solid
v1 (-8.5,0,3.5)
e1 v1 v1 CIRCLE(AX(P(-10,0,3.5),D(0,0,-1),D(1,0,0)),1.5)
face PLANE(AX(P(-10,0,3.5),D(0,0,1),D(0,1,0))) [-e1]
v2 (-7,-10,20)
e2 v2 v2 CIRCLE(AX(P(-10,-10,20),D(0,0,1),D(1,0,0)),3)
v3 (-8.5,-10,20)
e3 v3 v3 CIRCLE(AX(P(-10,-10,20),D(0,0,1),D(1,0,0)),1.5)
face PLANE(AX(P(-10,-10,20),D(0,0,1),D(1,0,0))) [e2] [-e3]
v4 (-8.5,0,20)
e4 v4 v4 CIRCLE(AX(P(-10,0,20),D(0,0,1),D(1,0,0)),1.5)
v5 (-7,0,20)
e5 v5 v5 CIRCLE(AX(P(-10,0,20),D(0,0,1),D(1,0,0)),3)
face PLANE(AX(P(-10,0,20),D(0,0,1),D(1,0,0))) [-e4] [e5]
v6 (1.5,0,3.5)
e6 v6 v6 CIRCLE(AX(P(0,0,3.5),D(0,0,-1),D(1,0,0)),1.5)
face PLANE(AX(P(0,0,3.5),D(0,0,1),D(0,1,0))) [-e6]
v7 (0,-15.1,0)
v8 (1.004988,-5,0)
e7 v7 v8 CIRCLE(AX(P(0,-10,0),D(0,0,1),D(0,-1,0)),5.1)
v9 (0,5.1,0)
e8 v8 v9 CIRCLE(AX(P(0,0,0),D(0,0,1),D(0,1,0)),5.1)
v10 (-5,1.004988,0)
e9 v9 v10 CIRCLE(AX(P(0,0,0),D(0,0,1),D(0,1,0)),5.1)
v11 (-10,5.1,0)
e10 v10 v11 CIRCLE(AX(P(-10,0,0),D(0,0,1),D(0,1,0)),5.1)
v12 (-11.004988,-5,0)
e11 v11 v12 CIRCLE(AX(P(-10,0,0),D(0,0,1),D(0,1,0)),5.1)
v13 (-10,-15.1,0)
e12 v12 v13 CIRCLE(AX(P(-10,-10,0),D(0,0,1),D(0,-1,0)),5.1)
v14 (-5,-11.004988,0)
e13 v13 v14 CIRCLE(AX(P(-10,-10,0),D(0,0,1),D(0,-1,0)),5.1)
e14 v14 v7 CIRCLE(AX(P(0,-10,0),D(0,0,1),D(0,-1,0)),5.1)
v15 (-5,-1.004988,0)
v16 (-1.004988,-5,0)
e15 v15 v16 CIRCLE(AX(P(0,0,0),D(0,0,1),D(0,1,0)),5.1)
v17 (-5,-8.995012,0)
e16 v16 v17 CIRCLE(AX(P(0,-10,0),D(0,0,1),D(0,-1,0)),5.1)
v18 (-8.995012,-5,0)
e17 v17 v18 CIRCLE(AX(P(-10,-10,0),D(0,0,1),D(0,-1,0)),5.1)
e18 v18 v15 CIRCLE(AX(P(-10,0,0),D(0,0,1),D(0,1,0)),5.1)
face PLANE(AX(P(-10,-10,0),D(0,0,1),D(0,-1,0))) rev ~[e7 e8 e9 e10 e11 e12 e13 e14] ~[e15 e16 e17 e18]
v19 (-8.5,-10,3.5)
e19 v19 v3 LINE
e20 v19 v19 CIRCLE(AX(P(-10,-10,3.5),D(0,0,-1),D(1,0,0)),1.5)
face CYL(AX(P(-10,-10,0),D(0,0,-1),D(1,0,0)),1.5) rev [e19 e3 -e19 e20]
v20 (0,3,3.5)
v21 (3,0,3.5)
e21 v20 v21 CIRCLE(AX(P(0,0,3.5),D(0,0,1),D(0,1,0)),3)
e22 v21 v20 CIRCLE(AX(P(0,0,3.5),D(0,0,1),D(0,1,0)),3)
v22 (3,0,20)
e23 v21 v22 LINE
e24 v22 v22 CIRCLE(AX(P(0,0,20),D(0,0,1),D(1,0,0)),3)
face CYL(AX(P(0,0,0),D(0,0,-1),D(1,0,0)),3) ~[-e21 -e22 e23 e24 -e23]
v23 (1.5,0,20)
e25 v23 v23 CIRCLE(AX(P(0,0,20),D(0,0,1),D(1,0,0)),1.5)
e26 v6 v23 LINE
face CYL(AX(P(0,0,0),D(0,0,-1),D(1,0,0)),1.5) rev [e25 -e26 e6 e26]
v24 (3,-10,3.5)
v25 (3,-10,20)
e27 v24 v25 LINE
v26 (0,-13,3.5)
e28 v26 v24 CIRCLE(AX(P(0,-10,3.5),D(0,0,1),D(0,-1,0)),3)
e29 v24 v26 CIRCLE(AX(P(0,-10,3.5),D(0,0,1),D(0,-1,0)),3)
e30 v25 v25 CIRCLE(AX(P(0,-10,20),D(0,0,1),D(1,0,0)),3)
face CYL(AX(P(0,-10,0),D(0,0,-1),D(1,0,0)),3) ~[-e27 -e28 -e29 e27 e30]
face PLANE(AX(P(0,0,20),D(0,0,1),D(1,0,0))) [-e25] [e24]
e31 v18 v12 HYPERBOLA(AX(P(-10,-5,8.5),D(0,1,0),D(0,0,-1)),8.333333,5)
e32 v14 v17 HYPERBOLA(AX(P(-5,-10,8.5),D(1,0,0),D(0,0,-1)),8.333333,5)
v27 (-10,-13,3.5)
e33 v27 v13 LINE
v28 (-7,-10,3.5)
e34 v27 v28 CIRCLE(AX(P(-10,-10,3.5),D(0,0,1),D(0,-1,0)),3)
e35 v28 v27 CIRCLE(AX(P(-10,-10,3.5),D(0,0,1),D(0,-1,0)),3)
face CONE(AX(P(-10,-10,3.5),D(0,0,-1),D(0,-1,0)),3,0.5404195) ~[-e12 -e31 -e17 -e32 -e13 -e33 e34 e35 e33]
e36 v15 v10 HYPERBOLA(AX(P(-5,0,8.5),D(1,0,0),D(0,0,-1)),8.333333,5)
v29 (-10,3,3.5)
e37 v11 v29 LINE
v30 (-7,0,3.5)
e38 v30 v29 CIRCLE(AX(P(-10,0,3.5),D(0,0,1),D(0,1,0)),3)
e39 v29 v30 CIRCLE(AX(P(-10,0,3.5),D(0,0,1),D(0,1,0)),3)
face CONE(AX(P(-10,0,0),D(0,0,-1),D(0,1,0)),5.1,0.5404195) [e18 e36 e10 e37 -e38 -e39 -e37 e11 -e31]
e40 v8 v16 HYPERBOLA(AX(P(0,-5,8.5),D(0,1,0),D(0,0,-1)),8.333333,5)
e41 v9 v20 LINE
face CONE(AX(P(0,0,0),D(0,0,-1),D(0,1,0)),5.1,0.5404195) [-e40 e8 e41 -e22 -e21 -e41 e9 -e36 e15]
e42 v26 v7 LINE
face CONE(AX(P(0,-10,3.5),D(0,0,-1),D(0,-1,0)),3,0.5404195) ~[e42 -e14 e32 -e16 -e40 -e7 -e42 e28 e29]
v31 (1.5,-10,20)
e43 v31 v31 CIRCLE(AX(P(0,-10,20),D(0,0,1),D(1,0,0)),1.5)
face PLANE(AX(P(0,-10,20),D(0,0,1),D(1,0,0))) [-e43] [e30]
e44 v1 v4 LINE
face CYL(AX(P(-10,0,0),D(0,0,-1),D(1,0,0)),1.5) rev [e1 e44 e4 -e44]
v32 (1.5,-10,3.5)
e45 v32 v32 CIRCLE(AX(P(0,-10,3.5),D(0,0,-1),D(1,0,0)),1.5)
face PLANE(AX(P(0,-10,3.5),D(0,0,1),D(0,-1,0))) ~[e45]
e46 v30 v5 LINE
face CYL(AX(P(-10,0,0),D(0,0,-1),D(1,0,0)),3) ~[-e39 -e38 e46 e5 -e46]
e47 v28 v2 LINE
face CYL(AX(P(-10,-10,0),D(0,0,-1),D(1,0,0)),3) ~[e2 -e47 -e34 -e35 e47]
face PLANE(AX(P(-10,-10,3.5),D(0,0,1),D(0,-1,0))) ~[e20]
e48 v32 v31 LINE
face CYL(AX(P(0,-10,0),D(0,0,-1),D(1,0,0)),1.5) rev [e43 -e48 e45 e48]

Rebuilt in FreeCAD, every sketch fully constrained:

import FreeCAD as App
import Part
import Sketcher

V = App.Vector
Q = App.Units.Quantity


def add_polygon(sketch, points):
    """Adds a closed chain of lines whose ends are joined by coincident constraints."""
    first, n = sketch.GeometryCount, len(points)
    for a, b in zip(points, points[1:] + points[:1]):
        sketch.addGeometry(Part.LineSegment(App.Vector(*a, 0), App.Vector(*b, 0)), False)
    for i in range(n):
        sketch.addConstraint(Sketcher.Constraint("Coincident", first + i, 2, first + (i + 1) % n, 1))

doc = App.newDocument("Part")
params = doc.addObject("Spreadsheet::Sheet", "Params")
for row, (alias, value) in enumerate([
    ("sketch1_diameter", "6 mm"),
    ("sketch1_diameter2", "3 mm"),
    ("pad1_length", "20 mm"),
    ("sketch2_width", "3 mm"),
    ("sketch2_width2", "5.1 mm"),
    ("sketch2_height", "3.5 mm"),
    ("revolution_angle", "360 deg"),
    ("sketch3_width", "3 mm"),
    ("sketch3_width2", "5.1 mm"),
    ("sketch3_height", "3.5 mm"),
    ("revolution2_angle", "360 deg"),
    ("sketch4_width", "3 mm"),
    ("sketch4_width2", "5.1 mm"),
    ("sketch4_height", "3.5 mm"),
    ("revolution3_angle", "360 deg"),
    ("sketch5_width", "3 mm"),
    ("sketch5_width2", "5.1 mm"),
    ("sketch5_height", "3.5 mm"),
    ("revolution4_angle", "360 deg"),
], start=1):
    params.set(f"A{row}", alias)
    params.set(f"B{row}", "=" + value)
    params.setAlias(f"B{row}", alias)

body = doc.addObject("PartDesign::Body", "Body")
body.AllowCompound = True

sketch1 = body.newObject("Sketcher::SketchObject", "Sketch")
sketch1.AttachmentSupport = (doc.getObject("XY_Plane"), [""])
sketch1.MapMode = "FlatFace"
sketch1.addGeometry([
    Part.Circle(V(0, 0, 0), V(0, 0, 1), 3),
    Part.Circle(V(0, 0, 0), V(0, 0, 1), 1.5),
    Part.Circle(V(-10, 0, 0), V(0, 0, 1), 3),
    Part.Circle(V(-10, 0, 0), V(0, 0, 1), 1.5),
    Part.Circle(V(-10, -10, 0), V(0, 0, 1), 3),
    Part.Circle(V(-10, -10, 0), V(0, 0, 1), 1.5),
    Part.Circle(V(0, -10, 0), V(0, 0, 1), 3),
    Part.Circle(V(0, -10, 0), V(0, 0, 1), 1.5),
], False)
sketch1.addConstraint([
    Sketcher.Constraint("Coincident", 0, 3, -1, 1),
    Sketcher.Constraint("Coincident", 1, 3, -1, 1),
    Sketcher.Constraint("Coincident", 3, 3, 2, 3),
    Sketcher.Constraint("Coincident", 5, 3, 4, 3),
    Sketcher.Constraint("Coincident", 7, 3, 6, 3),
    Sketcher.Constraint("Equal", 0, 2),
    Sketcher.Constraint("Equal", 1, 3),
    Sketcher.Constraint("Equal", 2, 4),
    Sketcher.Constraint("Equal", 3, 5),
    Sketcher.Constraint("Equal", 4, 6),
    Sketcher.Constraint("Equal", 5, 7),
    Sketcher.Constraint("PointOnObject", 2, 3, -1),
    Sketcher.Constraint("PointOnObject", 6, 3, -2),
    Sketcher.Constraint("Horizontal", 5, 3, 6, 3),
    Sketcher.Constraint("Vertical", 3, 3, 4, 3),
    Sketcher.Constraint("Diameter", 0, Q("6 mm")),
    Sketcher.Constraint("Diameter", 1, Q("3 mm")),
    Sketcher.Constraint("DistanceX", 2, 3, -1, 1, Q("10 mm")),
    Sketcher.Constraint("DistanceY", 4, 3, -1, 1, Q("10 mm")),
])
sketch1.setExpression("Constraints[15]", "Params.sketch1_diameter")
sketch1.setExpression("Constraints[16]", "Params.sketch1_diameter2")
pad1 = body.newObject("PartDesign::Pad", "Pad")
pad1.Profile = sketch1
pad1.setExpression("Length", "Params.pad1_length")

sketch2 = body.newObject("Sketcher::SketchObject", "Sketch001")
sketch2.AttachmentSupport = (doc.getObject("YZ_Plane"), [""])
sketch2.MapMode = "FlatFace"
add_polygon(sketch2, [(0, 3.5), (0, 0), (5.1, 0), (3, 3.5)])
sketch2.addConstraint([
    Sketcher.Constraint("Vertical", 0),
    Sketcher.Constraint("Horizontal", 1),
    Sketcher.Constraint("Horizontal", 3),
    Sketcher.Constraint("Coincident", 0, 2, -1, 1),
    Sketcher.Constraint("DistanceX", 3, 2, 3, 1, Q("3 mm")),
    Sketcher.Constraint("DistanceX", 1, 1, 1, 2, Q("5.1 mm")),
    Sketcher.Constraint("DistanceY", 0, 2, 0, 1, Q("3.5 mm")),
])
sketch2.setExpression("Constraints[8]", "Params.sketch2_width")
sketch2.setExpression("Constraints[9]", "Params.sketch2_width2")
sketch2.setExpression("Constraints[10]", "Params.sketch2_height")
revolution = body.newObject("PartDesign::Revolution", "Revolution")
revolution.Profile = sketch2
revolution.ReferenceAxis = (sketch2, ["V_Axis"])
revolution.setExpression("Angle", "Params.revolution_angle")

sketch3 = body.newObject("Sketcher::SketchObject", "Sketch002")
sketch3.AttachmentSupport = (doc.getObject("YZ_Plane"), [""])
sketch3.MapMode = "FlatFace"
add_polygon(sketch3, [(-15.1, 0), (-10, 0), (-10, 3.5), (-13, 3.5)])
sketch3.addGeometry(Part.LineSegment(V(-10, 0, 0), V(-10, 3.5, 0)), True)
sketch3.addConstraint([
    Sketcher.Constraint("Horizontal", 0),
    Sketcher.Constraint("Vertical", 1),
    Sketcher.Constraint("Horizontal", 2),
    Sketcher.Constraint("Vertical", 4),
    Sketcher.Constraint("Coincident", 4, 1, 0, 2),
    Sketcher.Constraint("PointOnObject", 0, 2, -1),
    Sketcher.Constraint("Horizontal", 2, 2, 4, 2),
    Sketcher.Constraint("DistanceX", 2, 2, 2, 1, Q("3 mm")),
    Sketcher.Constraint("DistanceX", 0, 1, 0, 2, Q("5.1 mm")),
    Sketcher.Constraint("DistanceY", 1, 1, 1, 2, Q("3.5 mm")),
    Sketcher.Constraint("DistanceX", 0, 2, -1, 1, Q("10 mm")),
])
sketch3.setExpression("Constraints[11]", "Params.sketch3_width")
sketch3.setExpression("Constraints[12]", "Params.sketch3_width2")
sketch3.setExpression("Constraints[13]", "Params.sketch3_height")
revolution2 = body.newObject("PartDesign::Revolution", "Revolution001")
revolution2.Profile = sketch3
revolution2.ReferenceAxis = (sketch3, ["Axis0"])
revolution2.setExpression("Angle", "Params.revolution2_angle")

sketch4 = body.newObject("Sketcher::SketchObject", "Sketch003")
sketch4.AttachmentSupport = (doc.getObject("YZ_Plane"), [""])
sketch4.MapMode = "FlatFace"
sketch4.AttachmentOffset = App.Placement(V(0, 0, -10), App.Rotation())
add_polygon(sketch4, [(0, 3.5), (0, 0), (5.1, 0), (3, 3.5)])
sketch4.addConstraint([
    Sketcher.Constraint("Vertical", 0),
    Sketcher.Constraint("Horizontal", 1),
    Sketcher.Constraint("Horizontal", 3),
    Sketcher.Constraint("Coincident", 0, 2, -1, 1),
    Sketcher.Constraint("DistanceX", 3, 2, 3, 1, Q("3 mm")),
    Sketcher.Constraint("DistanceX", 1, 1, 1, 2, Q("5.1 mm")),
    Sketcher.Constraint("DistanceY", 0, 2, 0, 1, Q("3.5 mm")),
])
sketch4.setExpression("Constraints[8]", "Params.sketch4_width")
sketch4.setExpression("Constraints[9]", "Params.sketch4_width2")
sketch4.setExpression("Constraints[10]", "Params.sketch4_height")
revolution3 = body.newObject("PartDesign::Revolution", "Revolution002")
revolution3.Profile = sketch4
revolution3.ReferenceAxis = (sketch4, ["V_Axis"])
revolution3.setExpression("Angle", "Params.revolution3_angle")

sketch5 = body.newObject("Sketcher::SketchObject", "Sketch004")
sketch5.AttachmentSupport = (doc.getObject("YZ_Plane"), [""])
sketch5.MapMode = "FlatFace"
sketch5.AttachmentOffset = App.Placement(V(0, 0, -10), App.Rotation())
add_polygon(sketch5, [(-15.1, 0), (-10, 0), (-10, 3.5), (-13, 3.5)])
sketch5.addGeometry(Part.LineSegment(V(-10, 0, 0), V(-10, 3.5, 0)), True)
sketch5.addConstraint([
    Sketcher.Constraint("Horizontal", 0),
    Sketcher.Constraint("Vertical", 1),
    Sketcher.Constraint("Horizontal", 2),
    Sketcher.Constraint("Vertical", 4),
    Sketcher.Constraint("Coincident", 4, 1, 0, 2),
    Sketcher.Constraint("PointOnObject", 0, 2, -1),
    Sketcher.Constraint("Horizontal", 2, 2, 4, 2),
    Sketcher.Constraint("DistanceX", 2, 2, 2, 1, Q("3 mm")),
    Sketcher.Constraint("DistanceX", 0, 1, 0, 2, Q("5.1 mm")),
    Sketcher.Constraint("DistanceY", 1, 1, 1, 2, Q("3.5 mm")),
    Sketcher.Constraint("DistanceX", 0, 2, -1, 1, Q("10 mm")),
])
sketch5.setExpression("Constraints[11]", "Params.sketch5_width")
sketch5.setExpression("Constraints[12]", "Params.sketch5_width2")
sketch5.setExpression("Constraints[13]", "Params.sketch5_height")
revolution4 = body.newObject("PartDesign::Revolution", "Revolution003")
revolution4.Profile = sketch5
revolution4.ReferenceAxis = (sketch5, ["Axis0"])
revolution4.setExpression("Angle", "Params.revolution4_angle")

doc.recompute()
